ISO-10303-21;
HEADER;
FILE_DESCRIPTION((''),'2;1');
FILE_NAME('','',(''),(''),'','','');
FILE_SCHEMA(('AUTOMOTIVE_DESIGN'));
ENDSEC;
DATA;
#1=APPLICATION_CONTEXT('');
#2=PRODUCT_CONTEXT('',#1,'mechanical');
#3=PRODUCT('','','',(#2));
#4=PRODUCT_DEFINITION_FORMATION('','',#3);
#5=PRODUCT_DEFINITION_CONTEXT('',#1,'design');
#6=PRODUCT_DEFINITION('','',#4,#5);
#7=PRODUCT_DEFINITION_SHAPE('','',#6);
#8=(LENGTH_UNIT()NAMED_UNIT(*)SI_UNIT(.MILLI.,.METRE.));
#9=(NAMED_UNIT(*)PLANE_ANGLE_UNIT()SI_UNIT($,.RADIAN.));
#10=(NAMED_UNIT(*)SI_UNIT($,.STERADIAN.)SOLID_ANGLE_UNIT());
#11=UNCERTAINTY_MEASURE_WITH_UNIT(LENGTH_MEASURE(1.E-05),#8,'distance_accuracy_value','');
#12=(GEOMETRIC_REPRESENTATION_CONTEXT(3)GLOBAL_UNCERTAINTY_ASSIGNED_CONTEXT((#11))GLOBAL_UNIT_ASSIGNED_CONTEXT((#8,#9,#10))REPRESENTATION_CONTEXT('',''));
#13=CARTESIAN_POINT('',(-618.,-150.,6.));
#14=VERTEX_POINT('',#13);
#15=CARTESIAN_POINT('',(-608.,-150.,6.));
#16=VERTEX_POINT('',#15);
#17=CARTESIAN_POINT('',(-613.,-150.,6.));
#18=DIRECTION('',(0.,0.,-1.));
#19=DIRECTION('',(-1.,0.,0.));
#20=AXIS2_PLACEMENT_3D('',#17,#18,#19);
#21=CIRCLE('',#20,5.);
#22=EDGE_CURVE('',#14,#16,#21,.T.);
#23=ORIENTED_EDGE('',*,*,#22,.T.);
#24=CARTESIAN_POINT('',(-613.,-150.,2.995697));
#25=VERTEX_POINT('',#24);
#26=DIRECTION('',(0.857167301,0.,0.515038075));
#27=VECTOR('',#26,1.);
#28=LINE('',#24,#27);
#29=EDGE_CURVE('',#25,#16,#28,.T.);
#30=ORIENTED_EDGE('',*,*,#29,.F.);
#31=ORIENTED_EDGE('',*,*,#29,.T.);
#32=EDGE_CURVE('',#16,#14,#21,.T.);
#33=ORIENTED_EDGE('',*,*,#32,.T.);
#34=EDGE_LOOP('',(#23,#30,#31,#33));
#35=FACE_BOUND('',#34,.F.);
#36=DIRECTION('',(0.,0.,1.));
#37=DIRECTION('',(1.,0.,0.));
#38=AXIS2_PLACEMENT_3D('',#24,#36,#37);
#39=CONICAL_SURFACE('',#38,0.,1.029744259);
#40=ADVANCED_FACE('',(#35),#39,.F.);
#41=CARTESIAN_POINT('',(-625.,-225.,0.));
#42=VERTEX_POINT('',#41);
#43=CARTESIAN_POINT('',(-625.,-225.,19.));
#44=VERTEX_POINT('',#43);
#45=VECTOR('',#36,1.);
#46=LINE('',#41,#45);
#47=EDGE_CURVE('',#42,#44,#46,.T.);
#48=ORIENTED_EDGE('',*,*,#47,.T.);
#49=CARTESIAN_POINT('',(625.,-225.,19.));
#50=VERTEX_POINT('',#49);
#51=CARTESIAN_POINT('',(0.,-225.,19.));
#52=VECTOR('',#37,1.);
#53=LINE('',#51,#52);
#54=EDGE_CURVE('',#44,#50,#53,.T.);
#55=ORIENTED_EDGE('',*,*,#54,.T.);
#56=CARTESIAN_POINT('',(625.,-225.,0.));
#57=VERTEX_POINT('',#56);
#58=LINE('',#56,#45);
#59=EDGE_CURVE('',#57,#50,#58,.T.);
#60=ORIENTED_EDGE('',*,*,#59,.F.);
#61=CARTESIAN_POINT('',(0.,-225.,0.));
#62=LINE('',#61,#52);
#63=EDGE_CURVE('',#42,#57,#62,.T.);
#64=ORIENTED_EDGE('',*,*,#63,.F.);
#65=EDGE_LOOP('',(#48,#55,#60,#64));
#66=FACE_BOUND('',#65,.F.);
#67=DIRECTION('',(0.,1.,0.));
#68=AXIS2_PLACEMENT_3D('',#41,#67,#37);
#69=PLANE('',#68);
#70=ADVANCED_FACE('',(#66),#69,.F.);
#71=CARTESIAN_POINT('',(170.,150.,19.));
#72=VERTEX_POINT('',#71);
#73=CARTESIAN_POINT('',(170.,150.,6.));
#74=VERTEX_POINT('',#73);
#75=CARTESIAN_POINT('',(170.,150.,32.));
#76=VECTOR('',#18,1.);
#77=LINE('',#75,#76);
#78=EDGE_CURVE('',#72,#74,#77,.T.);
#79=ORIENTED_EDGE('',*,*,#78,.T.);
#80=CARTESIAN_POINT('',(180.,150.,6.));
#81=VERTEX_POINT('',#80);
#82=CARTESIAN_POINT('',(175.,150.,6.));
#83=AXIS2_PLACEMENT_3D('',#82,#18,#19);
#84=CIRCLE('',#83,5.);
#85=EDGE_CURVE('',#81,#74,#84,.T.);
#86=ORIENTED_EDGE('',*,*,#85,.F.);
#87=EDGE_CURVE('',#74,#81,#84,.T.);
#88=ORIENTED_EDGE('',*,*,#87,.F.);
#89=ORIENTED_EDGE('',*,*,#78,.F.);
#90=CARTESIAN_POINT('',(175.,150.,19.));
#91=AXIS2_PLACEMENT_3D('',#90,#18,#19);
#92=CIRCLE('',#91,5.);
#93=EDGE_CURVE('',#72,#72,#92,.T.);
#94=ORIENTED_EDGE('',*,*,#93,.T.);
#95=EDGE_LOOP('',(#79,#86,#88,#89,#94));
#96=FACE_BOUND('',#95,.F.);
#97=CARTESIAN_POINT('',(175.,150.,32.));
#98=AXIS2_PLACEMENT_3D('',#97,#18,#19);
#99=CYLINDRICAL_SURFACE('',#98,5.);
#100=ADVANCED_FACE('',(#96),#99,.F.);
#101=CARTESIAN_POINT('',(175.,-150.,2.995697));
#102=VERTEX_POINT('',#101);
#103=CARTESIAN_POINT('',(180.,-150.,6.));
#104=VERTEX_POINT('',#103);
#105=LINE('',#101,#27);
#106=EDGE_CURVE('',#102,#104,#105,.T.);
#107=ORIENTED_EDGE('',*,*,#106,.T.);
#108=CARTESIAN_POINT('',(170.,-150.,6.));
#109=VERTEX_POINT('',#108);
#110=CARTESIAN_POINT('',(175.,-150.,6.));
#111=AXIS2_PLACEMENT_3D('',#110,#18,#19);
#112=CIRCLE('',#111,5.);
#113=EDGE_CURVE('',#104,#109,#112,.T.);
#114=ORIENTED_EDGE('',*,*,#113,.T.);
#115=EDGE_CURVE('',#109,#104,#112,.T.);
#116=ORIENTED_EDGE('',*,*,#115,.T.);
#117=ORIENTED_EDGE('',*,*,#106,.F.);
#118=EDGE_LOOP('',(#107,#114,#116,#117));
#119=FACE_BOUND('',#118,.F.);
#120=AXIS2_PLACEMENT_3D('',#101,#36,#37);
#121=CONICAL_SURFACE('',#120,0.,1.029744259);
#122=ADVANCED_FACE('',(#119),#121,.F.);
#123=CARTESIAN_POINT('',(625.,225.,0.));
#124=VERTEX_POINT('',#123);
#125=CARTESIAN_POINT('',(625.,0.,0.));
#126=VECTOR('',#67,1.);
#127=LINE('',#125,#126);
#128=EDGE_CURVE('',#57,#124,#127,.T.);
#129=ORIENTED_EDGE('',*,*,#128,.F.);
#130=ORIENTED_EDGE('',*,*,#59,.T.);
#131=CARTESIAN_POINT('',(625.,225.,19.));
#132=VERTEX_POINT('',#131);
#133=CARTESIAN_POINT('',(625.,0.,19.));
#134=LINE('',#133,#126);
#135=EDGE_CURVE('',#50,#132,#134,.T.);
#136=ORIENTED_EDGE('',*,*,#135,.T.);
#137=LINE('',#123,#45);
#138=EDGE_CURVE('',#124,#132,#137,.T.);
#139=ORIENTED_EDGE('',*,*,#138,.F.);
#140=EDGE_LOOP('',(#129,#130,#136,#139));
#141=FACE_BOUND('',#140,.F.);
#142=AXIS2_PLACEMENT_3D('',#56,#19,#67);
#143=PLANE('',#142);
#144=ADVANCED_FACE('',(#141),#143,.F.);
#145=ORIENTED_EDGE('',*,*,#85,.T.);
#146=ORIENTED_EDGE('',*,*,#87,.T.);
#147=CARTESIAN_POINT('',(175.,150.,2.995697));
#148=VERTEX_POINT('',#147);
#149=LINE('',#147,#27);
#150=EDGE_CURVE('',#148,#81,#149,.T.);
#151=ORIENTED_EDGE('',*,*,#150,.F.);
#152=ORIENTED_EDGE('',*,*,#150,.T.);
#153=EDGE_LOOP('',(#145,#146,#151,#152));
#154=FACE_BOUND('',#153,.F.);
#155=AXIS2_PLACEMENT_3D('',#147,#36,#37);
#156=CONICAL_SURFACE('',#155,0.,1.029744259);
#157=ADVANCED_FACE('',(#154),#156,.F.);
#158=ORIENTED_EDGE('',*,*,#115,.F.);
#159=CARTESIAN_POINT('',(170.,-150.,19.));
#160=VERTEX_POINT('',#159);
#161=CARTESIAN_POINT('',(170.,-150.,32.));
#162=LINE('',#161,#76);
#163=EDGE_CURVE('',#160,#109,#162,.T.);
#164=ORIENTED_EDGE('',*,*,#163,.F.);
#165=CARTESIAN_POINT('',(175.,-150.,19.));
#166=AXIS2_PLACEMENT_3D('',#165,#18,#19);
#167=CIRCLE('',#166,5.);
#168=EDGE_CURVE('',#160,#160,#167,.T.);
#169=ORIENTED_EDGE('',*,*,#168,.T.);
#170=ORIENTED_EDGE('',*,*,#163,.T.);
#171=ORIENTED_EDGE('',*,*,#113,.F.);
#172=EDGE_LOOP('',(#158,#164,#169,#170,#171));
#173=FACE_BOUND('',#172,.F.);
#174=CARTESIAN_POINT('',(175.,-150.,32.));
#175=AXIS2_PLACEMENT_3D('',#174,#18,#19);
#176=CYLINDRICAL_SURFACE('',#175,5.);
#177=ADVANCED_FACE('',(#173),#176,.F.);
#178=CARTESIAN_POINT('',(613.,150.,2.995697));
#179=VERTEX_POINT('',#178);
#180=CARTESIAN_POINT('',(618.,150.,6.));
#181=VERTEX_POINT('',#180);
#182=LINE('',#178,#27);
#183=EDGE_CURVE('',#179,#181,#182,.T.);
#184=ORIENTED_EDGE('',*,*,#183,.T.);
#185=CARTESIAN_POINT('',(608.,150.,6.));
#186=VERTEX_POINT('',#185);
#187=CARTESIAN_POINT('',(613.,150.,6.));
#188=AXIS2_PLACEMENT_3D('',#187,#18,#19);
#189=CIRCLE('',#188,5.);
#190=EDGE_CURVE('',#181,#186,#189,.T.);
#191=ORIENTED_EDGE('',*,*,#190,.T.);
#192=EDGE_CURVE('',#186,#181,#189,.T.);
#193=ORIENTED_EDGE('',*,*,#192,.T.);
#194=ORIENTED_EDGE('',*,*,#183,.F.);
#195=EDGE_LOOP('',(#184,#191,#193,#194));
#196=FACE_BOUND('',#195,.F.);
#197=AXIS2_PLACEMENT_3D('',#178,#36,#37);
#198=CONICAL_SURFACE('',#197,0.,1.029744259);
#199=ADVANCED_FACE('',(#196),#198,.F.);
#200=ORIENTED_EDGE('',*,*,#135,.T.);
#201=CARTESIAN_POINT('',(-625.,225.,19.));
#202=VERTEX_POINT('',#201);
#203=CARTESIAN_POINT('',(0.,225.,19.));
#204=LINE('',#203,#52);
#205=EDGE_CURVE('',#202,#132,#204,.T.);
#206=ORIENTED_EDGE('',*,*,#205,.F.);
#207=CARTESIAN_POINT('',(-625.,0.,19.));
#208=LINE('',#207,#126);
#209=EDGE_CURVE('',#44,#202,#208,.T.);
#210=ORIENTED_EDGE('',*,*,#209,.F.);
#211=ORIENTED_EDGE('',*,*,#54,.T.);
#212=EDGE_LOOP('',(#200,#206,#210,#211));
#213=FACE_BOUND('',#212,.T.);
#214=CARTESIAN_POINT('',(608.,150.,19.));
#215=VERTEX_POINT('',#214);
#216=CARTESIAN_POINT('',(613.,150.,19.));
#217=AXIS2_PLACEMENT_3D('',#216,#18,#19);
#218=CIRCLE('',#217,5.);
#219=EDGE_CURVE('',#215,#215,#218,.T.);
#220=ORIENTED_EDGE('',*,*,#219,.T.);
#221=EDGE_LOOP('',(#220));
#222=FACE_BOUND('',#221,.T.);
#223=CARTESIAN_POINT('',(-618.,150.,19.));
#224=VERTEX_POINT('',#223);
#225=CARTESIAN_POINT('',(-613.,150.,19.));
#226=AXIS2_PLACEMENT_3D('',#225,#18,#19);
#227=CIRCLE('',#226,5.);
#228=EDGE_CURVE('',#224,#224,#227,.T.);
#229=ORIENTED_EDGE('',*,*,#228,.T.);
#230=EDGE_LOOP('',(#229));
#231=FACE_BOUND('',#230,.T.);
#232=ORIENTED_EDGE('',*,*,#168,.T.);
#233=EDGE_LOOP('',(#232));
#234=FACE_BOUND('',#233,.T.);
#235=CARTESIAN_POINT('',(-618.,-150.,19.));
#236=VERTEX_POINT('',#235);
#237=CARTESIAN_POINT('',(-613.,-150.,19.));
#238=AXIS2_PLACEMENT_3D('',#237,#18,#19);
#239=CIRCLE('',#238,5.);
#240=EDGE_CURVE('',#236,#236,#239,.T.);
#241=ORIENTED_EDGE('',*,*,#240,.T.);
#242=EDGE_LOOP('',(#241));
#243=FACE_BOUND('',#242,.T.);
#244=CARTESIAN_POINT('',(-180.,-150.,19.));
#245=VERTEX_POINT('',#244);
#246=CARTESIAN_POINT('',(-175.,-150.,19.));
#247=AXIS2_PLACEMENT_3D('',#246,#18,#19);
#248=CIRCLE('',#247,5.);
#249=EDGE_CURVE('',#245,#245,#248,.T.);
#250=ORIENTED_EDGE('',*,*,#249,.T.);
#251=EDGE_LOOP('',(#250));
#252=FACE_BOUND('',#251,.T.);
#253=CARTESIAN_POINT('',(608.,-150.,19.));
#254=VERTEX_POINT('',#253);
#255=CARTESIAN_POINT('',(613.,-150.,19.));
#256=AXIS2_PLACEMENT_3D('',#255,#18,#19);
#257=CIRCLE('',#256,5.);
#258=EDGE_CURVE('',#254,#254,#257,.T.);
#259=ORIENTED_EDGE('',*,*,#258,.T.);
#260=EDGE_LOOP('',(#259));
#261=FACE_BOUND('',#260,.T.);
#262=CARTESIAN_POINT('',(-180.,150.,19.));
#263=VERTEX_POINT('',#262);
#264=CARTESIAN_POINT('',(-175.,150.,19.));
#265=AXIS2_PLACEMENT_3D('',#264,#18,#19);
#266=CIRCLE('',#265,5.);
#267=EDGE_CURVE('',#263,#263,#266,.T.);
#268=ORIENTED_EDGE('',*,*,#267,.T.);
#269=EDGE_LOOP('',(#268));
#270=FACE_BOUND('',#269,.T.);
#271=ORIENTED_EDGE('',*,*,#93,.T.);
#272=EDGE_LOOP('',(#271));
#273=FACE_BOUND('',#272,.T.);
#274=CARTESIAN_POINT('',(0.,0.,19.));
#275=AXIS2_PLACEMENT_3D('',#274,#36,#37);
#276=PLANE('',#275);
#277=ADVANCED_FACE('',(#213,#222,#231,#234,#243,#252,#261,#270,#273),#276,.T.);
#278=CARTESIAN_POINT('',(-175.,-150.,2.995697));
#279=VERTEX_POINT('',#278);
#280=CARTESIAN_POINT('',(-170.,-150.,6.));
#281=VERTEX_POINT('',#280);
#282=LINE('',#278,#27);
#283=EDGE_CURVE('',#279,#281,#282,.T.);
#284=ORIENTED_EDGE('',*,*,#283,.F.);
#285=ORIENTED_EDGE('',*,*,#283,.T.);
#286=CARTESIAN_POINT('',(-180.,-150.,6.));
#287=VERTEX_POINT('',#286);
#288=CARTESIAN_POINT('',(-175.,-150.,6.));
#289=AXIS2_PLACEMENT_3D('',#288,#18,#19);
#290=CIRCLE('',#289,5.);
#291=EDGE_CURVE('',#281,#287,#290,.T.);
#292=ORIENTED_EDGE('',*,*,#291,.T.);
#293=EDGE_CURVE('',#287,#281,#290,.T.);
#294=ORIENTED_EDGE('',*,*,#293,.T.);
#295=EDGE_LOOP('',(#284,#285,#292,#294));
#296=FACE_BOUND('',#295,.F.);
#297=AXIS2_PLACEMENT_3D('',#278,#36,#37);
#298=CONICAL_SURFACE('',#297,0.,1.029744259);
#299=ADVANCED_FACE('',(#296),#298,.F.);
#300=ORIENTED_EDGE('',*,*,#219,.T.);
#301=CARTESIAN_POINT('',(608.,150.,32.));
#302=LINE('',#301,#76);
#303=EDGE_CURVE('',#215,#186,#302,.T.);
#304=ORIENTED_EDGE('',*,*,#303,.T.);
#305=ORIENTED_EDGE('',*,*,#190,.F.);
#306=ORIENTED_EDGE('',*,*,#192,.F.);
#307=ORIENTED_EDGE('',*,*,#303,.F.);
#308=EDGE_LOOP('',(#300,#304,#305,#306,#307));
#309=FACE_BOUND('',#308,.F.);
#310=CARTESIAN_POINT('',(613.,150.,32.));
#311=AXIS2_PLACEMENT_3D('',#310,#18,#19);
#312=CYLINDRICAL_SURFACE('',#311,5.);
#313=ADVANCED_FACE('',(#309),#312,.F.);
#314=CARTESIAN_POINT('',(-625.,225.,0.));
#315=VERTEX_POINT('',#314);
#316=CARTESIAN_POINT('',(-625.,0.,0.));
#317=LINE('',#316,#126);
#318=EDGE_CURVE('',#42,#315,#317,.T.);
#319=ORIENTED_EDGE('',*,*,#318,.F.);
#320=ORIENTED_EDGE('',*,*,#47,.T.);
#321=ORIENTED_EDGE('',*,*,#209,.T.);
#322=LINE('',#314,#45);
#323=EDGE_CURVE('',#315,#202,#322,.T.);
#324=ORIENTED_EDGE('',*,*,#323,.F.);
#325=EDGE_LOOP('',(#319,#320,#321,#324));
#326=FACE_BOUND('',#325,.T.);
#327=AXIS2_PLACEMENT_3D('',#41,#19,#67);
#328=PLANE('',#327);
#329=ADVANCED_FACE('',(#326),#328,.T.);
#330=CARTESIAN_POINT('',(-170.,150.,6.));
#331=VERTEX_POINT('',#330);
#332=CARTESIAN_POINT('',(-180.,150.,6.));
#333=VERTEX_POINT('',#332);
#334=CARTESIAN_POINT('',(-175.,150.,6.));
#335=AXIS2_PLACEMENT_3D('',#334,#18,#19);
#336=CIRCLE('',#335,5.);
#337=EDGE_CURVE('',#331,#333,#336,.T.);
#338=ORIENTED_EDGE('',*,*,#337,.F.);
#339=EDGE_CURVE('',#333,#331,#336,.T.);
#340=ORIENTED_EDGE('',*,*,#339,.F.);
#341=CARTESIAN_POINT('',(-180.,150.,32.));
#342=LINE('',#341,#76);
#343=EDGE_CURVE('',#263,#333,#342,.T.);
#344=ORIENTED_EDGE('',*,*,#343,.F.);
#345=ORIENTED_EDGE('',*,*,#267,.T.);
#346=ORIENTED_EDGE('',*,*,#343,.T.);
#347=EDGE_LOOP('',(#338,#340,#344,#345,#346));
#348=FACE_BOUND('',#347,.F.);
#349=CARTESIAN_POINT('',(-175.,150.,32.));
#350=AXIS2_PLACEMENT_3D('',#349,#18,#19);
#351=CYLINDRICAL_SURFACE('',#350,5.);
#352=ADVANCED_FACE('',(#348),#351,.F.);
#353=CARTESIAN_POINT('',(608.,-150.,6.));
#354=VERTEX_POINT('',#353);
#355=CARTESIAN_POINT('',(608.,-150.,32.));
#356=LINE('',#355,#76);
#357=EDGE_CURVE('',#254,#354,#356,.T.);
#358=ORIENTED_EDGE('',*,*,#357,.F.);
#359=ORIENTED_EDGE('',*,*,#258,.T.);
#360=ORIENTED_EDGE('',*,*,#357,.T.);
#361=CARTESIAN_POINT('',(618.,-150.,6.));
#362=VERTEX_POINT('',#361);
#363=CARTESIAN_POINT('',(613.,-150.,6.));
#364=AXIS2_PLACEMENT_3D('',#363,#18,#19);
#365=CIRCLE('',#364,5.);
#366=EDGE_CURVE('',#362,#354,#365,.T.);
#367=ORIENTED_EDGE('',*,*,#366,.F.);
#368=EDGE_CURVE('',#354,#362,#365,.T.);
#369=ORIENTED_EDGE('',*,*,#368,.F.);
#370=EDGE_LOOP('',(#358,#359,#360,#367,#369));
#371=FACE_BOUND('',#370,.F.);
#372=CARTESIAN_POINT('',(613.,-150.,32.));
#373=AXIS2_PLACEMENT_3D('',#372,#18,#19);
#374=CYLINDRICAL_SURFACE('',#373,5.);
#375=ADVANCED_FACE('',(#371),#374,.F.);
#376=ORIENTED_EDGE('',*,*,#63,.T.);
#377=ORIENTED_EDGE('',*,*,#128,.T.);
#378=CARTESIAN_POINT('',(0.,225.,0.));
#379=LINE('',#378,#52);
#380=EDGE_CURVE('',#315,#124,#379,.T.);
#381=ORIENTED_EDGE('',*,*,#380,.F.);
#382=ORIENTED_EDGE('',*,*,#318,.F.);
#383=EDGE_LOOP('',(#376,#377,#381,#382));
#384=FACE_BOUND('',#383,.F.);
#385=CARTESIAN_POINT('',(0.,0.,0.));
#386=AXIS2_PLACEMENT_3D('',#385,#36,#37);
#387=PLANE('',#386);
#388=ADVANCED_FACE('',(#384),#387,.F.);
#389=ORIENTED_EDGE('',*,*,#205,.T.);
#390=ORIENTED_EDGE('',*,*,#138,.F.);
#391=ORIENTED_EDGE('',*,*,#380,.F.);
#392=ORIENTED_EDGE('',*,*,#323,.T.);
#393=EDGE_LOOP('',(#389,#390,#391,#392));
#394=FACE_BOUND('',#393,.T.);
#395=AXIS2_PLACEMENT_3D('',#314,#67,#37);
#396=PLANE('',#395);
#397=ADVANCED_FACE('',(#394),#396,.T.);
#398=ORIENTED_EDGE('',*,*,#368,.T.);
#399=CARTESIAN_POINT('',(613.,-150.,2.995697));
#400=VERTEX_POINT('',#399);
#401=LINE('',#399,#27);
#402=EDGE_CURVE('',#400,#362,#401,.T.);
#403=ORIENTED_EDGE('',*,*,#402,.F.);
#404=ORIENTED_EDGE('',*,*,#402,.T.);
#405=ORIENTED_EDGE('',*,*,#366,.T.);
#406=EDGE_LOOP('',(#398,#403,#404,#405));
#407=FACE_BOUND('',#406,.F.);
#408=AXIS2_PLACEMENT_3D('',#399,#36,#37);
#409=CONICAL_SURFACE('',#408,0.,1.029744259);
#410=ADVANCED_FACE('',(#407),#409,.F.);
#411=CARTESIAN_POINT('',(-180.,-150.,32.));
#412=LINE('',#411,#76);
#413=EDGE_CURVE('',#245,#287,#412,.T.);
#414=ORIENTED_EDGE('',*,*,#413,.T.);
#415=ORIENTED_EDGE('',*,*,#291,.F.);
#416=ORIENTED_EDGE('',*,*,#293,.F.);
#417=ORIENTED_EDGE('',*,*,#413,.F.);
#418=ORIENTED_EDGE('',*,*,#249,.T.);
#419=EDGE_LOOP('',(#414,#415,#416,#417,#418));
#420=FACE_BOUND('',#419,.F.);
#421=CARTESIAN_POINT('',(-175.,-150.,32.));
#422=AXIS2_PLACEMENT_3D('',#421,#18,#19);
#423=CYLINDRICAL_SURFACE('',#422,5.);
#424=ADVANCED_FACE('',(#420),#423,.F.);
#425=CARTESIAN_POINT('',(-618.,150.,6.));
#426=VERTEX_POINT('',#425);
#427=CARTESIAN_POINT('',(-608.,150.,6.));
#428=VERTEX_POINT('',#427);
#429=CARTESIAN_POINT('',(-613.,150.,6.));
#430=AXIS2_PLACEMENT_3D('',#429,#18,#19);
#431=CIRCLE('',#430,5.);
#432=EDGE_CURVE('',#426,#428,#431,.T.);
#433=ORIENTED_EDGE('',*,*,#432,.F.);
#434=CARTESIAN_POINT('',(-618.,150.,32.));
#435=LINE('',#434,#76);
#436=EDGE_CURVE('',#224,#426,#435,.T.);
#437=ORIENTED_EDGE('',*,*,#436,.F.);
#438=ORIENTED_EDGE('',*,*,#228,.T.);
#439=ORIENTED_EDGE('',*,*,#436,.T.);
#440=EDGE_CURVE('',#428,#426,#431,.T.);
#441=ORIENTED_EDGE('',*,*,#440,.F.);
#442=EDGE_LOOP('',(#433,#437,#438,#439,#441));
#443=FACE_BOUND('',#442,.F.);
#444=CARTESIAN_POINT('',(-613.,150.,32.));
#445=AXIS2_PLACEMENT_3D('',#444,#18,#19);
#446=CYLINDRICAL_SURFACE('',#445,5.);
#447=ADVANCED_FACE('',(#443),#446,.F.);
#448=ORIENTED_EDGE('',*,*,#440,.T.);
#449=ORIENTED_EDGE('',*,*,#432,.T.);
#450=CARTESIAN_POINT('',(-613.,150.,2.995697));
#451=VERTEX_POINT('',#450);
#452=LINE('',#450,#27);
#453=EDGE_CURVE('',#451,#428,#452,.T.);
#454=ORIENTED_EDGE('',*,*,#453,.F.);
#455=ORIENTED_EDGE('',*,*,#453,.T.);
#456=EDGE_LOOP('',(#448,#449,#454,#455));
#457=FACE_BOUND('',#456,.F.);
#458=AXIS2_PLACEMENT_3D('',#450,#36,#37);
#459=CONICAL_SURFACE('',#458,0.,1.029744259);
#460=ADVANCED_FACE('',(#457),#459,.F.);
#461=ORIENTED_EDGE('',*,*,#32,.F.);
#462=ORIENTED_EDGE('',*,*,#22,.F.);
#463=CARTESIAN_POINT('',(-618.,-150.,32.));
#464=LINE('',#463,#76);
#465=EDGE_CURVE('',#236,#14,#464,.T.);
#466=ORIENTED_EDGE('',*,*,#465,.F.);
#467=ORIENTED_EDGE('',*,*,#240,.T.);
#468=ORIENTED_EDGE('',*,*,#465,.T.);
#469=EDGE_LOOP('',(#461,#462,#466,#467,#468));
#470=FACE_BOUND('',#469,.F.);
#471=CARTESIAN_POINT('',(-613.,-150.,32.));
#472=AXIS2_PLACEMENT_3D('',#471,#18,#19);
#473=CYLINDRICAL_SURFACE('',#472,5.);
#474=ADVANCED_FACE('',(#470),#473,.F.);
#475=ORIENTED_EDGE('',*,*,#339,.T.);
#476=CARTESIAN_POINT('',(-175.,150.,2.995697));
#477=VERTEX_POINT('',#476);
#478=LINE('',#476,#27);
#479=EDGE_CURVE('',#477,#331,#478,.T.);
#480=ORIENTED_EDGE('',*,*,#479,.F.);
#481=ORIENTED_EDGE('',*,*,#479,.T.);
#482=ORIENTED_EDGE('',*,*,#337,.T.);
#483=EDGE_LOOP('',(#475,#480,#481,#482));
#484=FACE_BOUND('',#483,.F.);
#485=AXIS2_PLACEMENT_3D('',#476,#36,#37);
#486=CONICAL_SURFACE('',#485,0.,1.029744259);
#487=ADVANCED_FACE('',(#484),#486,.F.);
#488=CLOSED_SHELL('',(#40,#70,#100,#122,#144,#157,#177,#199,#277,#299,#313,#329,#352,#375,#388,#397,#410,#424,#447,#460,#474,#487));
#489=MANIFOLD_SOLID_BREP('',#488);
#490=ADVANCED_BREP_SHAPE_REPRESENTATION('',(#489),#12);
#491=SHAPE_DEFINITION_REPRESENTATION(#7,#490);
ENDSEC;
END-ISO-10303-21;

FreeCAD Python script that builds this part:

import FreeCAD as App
import Part
import Sketcher
from FreeCAD import Vector
Q = App.Units.Quantity


def add_polygon(sketch, points):
    """Adds a closed chain of lines whose ends are joined by coincident constraints."""
    first, n = sketch.GeometryCount, len(points)
    for a, b in zip(points, points[1:] + points[:1]):
        sketch.addGeometry(Part.LineSegment(App.Vector(*a, 0), App.Vector(*b, 0)), False)
    for i in range(n):
        sketch.addConstraint(Sketcher.Constraint("Coincident", first + i, 2, first + (i + 1) % n, 1))

doc = App.newDocument("Part")
body = doc.addObject("PartDesign::Body", "Body")

# Sketch on XY plane
sketch1 = doc.addObject("Sketcher::SketchObject", "Sketch")
body.addObject(sketch1)
sketch1.AttachmentSupport = (doc.XY_Plane, [""])
sketch1.MapMode = "FlatFace"
add_polygon(sketch1, [(-625, 225), (-625, -225), (625, -225), (625, 225)])  # lines 0-3
sketch1.addConstraint(Sketcher.Constraint("Vertical", 0))
sketch1.addConstraint(Sketcher.Constraint("Horizontal", 1))
sketch1.addConstraint(Sketcher.Constraint("Vertical", 2))
sketch1.addConstraint(Sketcher.Constraint("Horizontal", 3))
sketch1.addConstraint(Sketcher.Constraint("Symmetric", 0, 2, 2, 2, -1, 1))
sketch1.addConstraint(Sketcher.Constraint("DistanceX", 1, 1, 1, 2, Q("1250 mm")))
sketch1.addConstraint(Sketcher.Constraint("DistanceY", 0, 2, 0, 1, Q("450 mm")))
pad1 = doc.addObject("PartDesign::Pad", "Pad")
body.addObject(pad1)
pad1.Profile = sketch1
pad1.Length = 19

# Sketch on XY plane
sketch2 = doc.addObject("Sketcher::SketchObject", "Sketch001")
body.addObject(sketch2)
sketch2.AttachmentSupport = (doc.XY_Plane, [""])
sketch2.MapMode = "FlatFace"
sketch2.AttachmentOffset = App.Placement(Vector(0, 0, 19), App.Rotation())
sketch2.addGeometry(Part.Circle(Vector(-613, 150, 0), Vector(0, 0, 1), 5), False)
sketch2.addGeometry(Part.Circle(Vector(-175, 150, 0), Vector(0, 0, 1), 5), False)
sketch2.addGeometry(Part.Circle(Vector(175, 150, 0), Vector(0, 0, 1), 5), False)
sketch2.addGeometry(Part.Circle(Vector(613, 150, 0), Vector(0, 0, 1), 5), False)
sketch2.addGeometry(Part.Circle(Vector(613, -150, 0), Vector(0, 0, 1), 5), False)
sketch2.addGeometry(Part.Circle(Vector(175, -150, 0), Vector(0, 0, 1), 5), False)
sketch2.addGeometry(Part.Circle(Vector(-175, -150, 0), Vector(0, 0, 1), 5), False)
sketch2.addGeometry(Part.Circle(Vector(-613, -150, 0), Vector(0, 0, 1), 5), False)
sketch2.addConstraint(Sketcher.Constraint("Equal", 0, 1))
sketch2.addConstraint(Sketcher.Constraint("Equal", 1, 2))
sketch2.addConstraint(Sketcher.Constraint("Equal", 2, 3))
sketch2.addConstraint(Sketcher.Constraint("Equal", 3, 4))
sketch2.addConstraint(Sketcher.Constraint("Equal", 4, 5))
sketch2.addConstraint(Sketcher.Constraint("Equal", 5, 6))
sketch2.addConstraint(Sketcher.Constraint("Equal", 6, 7))
sketch2.addConstraint(Sketcher.Constraint("Symmetric", 0, 3, 4, 3, -1, 1))
sketch2.addConstraint(Sketcher.Constraint("Symmetric", 1, 3, 5, 3, -1, 1))
sketch2.addConstraint(Sketcher.Constraint("Symmetric", 2, 3, 6, 3, -1, 1))
sketch2.addConstraint(Sketcher.Constraint("Symmetric", 3, 3, 7, 3, -1, 1))
sketch2.addConstraint(Sketcher.Constraint("Symmetric", 1, 3, 2, 3, -2))
sketch2.addConstraint(Sketcher.Constraint("Symmetric", 0, 3, 3, 3, -2))
sketch2.addConstraint(Sketcher.Constraint("Horizontal", 0, 3, 1, 3))
sketch2.addConstraint(Sketcher.Constraint("Diameter", 0, Q("10 mm")))
sketch2.addConstraint(Sketcher.Constraint("DistanceX", 0, 3, -1, 1, Q("613 mm")))
sketch2.addConstraint(Sketcher.Constraint("DistanceY", -1, 1, 0, 3, Q("150 mm")))
sketch2.addConstraint(Sketcher.Constraint("DistanceX", 1, 3, -1, 1, Q("175 mm")))
doc.recompute()
hole = doc.addObject("PartDesign::Hole", "Hole")
body.addObject(hole)
hole.Profile = sketch2
hole.ThreadType = "None"
hole.Diameter = 10
hole.DepthType = "Dimension"
hole.Depth = 13
hole.DrillPoint = "Angled"
hole.DrillPointAngle = 118

doc.recompute()
